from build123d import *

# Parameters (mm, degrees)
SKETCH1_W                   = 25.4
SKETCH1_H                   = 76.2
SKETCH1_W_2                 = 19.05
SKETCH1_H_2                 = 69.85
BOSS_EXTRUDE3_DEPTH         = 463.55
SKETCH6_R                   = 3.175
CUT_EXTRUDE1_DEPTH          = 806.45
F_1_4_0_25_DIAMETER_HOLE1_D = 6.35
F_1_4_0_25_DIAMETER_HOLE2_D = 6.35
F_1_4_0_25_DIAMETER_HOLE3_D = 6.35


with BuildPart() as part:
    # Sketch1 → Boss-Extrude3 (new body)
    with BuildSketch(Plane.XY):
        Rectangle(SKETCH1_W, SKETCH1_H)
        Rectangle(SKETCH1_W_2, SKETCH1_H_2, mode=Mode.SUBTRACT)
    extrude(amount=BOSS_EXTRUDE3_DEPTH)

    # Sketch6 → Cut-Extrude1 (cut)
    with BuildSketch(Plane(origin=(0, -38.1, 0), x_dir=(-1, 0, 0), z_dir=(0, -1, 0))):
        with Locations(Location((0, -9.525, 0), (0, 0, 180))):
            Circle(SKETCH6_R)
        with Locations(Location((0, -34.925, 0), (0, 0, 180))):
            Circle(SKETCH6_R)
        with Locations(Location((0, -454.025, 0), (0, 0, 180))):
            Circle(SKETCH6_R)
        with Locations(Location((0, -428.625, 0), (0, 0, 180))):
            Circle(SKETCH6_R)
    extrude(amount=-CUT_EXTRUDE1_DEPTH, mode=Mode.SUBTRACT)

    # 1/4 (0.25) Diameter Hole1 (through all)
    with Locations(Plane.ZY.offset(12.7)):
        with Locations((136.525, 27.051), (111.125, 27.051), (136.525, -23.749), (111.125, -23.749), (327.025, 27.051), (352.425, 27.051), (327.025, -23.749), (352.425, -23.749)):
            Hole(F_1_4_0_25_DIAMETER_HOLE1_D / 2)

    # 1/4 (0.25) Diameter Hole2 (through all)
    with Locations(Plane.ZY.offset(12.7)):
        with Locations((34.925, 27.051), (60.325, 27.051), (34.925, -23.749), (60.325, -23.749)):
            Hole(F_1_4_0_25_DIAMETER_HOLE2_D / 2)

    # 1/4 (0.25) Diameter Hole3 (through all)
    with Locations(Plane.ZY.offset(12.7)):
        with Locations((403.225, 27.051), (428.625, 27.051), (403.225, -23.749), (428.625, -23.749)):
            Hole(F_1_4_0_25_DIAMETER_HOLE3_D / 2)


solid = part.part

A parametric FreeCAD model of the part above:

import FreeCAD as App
import Part
import Sketcher
Q = App.Units.Quantity


def add_polygon(sketch, points):
    """Adds a closed chain of lines whose ends are joined by coincident constraints."""
    first, n = sketch.GeometryCount, len(points)
    for a, b in zip(points, points[1:] + points[:1]):
        sketch.addGeometry(Part.LineSegment(App.Vector(*a, 0), App.Vector(*b, 0)), False)
    for i in range(n):
        sketch.addConstraint(Sketcher.Constraint("Coincident", first + i, 2, first + (i + 1) % n, 1))

doc = App.newDocument("Part")
params = doc.addObject("Spreadsheet::Sheet", "Params")
for row, (alias, value) in enumerate([
    ("sketch1_width", "1 in"),
    ("sketch1_height", "3 in"),
    ("sketch1_width2", "0.75 in"),
    ("sketch1_height2", "2.75 in"),
    ("pad1_length", "18.25 in"),
    ("sketch2_diameter", "0.25 in"),
    ("pocket1_length", "31.75 in"),
    ("sketch3_diameter", "0.25 in"),
    ("hole_diameter", "0.25 in"),
    ("sketch4_diameter", "0.25 in"),
    ("hole2_diameter", "0.25 in"),
    ("sketch5_diameter", "0.25 in"),
    ("hole3_diameter", "0.25 in"),
], start=1):
    params.set(f"A{row}", alias)
    params.set(f"B{row}", "=" + value)
    params.setAlias(f"B{row}", alias)

body = doc.addObject("PartDesign::Body", "Body")

sketch1 = doc.addObject("Sketcher::SketchObject", "Sketch")
body.addObject(sketch1)
sketch1.AttachmentSupport = (doc.XY_Plane, [""])
sketch1.MapMode = "FlatFace"
add_polygon(sketch1, [(-12.7, 38.1), (-12.7, -38.1), (12.7, -38.1), (12.7, 38.1)])
add_polygon(sketch1, [(9.525, -34.925), (-9.525, -34.925), (-9.525, 34.925), (9.525, 34.925)])
sketch1.addConstraint([
    Sketcher.Constraint("Vertical", 0),
    Sketcher.Constraint("Horizontal", 1),
    Sketcher.Constraint("Vertical", 2),
    Sketcher.Constraint("Horizontal", 3),
    Sketcher.Constraint("Horizontal", 4),
    Sketcher.Constraint("Vertical", 5),
    Sketcher.Constraint("Horizontal", 6),
    Sketcher.Constraint("Vertical", 7),
    Sketcher.Constraint("Symmetric", 0, 2, 2, 2, -1, 1),
    Sketcher.Constraint("Symmetric", 4, 2, 6, 2, -1, 1),
    Sketcher.Constraint("DistanceX", 1, 1, 1, 2, Q("1 in")),
    Sketcher.Constraint("DistanceY", 0, 2, 0, 1, Q("3 in")),
    Sketcher.Constraint("DistanceX", 4, 2, 4, 1, Q("0.75 in")),
    Sketcher.Constraint("DistanceY", 5, 1, 5, 2, Q("2.75 in")),
])
sketch1.setExpression("Constraints[18]", "Params.sketch1_width")
sketch1.setExpression("Constraints[19]", "Params.sketch1_height")
sketch1.setExpression("Constraints[20]", "Params.sketch1_width2")
sketch1.setExpression("Constraints[21]", "Params.sketch1_height2")
pad1 = doc.addObject("PartDesign::Pad", "Pad")
body.addObject(pad1)
pad1.Profile = sketch1
pad1.setExpression("Length", "Params.pad1_length")

sketch2 = doc.addObject("Sketcher::SketchObject", "Sketch001")
body.addObject(sketch2)
sketch2.AttachmentSupport = (doc.XZ_Plane, [""])
sketch2.MapMode = "FlatFace"
sketch2.AttachmentOffset = App.Placement(App.Vector(0, 0, 1.5 * 25.4), App.Rotation())
sketch2.addGeometry([
    Part.Circle(App.Vector(0, 9.525, 0), App.Vector(0, 0, 1), 3.175),
    Part.Circle(App.Vector(0, 34.925, 0), App.Vector(0, 0, 1), 3.175),
    Part.Circle(App.Vector(0, 454.025, 0), App.Vector(0, 0, 1), 3.175),
    Part.Circle(App.Vector(0, 428.625, 0), App.Vector(0, 0, 1), 3.175),
], False)
sketch2.addConstraint([
    Sketcher.Constraint("Equal", 0, 1),
    Sketcher.Constraint("Equal", 1, 2),
    Sketcher.Constraint("Equal", 2, 3),
    Sketcher.Constraint("PointOnObject", 0, 3, -2),
    Sketcher.Constraint("PointOnObject", 1, 3, -2),
    Sketcher.Constraint("PointOnObject", 2, 3, -2),
    Sketcher.Constraint("PointOnObject", 3, 3, -2),
    Sketcher.Constraint("Diameter", 0, Q("0.25 in")),
    Sketcher.Constraint("DistanceY", 0, 3, 1, 3, Q("1 in")),
    Sketcher.Constraint("DistanceY", 3, 3, 2, 3, Q("1 in")),
    Sketcher.Constraint("DistanceY", 1, 3, 2, 3, Q("16.5 in")),
    Sketcher.Constraint("DistanceY", -1, 1, 0, 3, Q("0.375 in")),
])
sketch2.setExpression("Constraints[7]", "Params.sketch2_diameter")
pocket1 = doc.addObject("PartDesign::Pocket", "Pocket")
body.addObject(pocket1)
pocket1.Profile = sketch2
pocket1.setExpression("Length", "Params.pocket1_length")

sketch3 = doc.addObject("Sketcher::SketchObject", "Sketch002")
body.addObject(sketch3)
sketch3.AttachmentSupport = (doc.YZ_Plane, [""])
sketch3.MapMode = "FlatFace"
sketch3.AttachmentOffset = App.Placement(App.Vector(0, 0, -0.5 * 25.4), App.Rotation())
sketch3.addGeometry([
    Part.Circle(App.Vector(27.051, 136.525, 0), App.Vector(0, 0, 1), 3.175),
    Part.Circle(App.Vector(27.051, 111.125, 0), App.Vector(0, 0, 1), 3.175),
    Part.Circle(App.Vector(-23.749, 136.525, 0), App.Vector(0, 0, 1), 3.175),
    Part.Circle(App.Vector(-23.749, 111.125, 0), App.Vector(0, 0, 1), 3.175),
    Part.Circle(App.Vector(27.051, 327.025, 0), App.Vector(0, 0, 1), 3.175),
    Part.Circle(App.Vector(27.051, 352.425, 0), App.Vector(0, 0, 1), 3.175),
    Part.Circle(App.Vector(-23.749, 327.025, 0), App.Vector(0, 0, 1), 3.175),
    Part.Circle(App.Vector(-23.749, 352.425, 0), App.Vector(0, 0, 1), 3.175),
], False)
sketch3.addConstraint([
    Sketcher.Constraint("Equal", 0, 1),
    Sketcher.Constraint("Equal", 1, 2),
    Sketcher.Constraint("Equal", 2, 3),
    Sketcher.Constraint("Equal", 3, 4),
    Sketcher.Constraint("Equal", 4, 5),
    Sketcher.Constraint("Equal", 5, 6),
    Sketcher.Constraint("Equal", 6, 7),
    Sketcher.Constraint("Horizontal", 0, 3, 2, 3),
    Sketcher.Constraint("Horizontal", 1, 3, 3, 3),
    Sketcher.Constraint("Horizontal", 4, 3, 6, 3),
    Sketcher.Constraint("Horizontal", 5, 3, 7, 3),
    Sketcher.Constraint("Vertical", 0, 3, 1, 3),
    Sketcher.Constraint("Vertical", 2, 3, 3, 3),
    Sketcher.Constraint("Vertical", 1, 3, 4, 3),
    Sketcher.Constraint("Vertical", 4, 3, 5, 3),
    Sketcher.Constraint("Vertical", 3, 3, 6, 3),
    Sketcher.Constraint("Vertical", 6, 3, 7, 3),
    Sketcher.Constraint("Diameter", 0, Q("0.25 in")),
    Sketcher.Constraint("DistanceY", 1, 3, 0, 3, Q("1 in")),
    Sketcher.Constraint("DistanceX", 2, 3, 0, 3, Q("2 in")),
    Sketcher.Constraint("DistanceY", 4, 3, 5, 3, Q("1 in")),
    Sketcher.Constraint("DistanceY", 0, 3, 4, 3, Q("7.5 in")),
    Sketcher.Constraint("DistanceX", -1, 1, 0, 3, Q("1.065 in")),
    Sketcher.Constraint("DistanceY", -1, 1, 0, 3, Q("5.375 in")),
])
sketch3.setExpression("Constraints[17]", "Params.sketch3_diameter")
doc.recompute()
hole = doc.addObject("PartDesign::Hole", "Hole")
body.addObject(hole)
hole.Profile = sketch3
hole.ThreadType = "None"
hole.setExpression("Diameter", "Params.hole_diameter")
hole.DepthType = "ThroughAll"
hole.Reversed = True

sketch4 = doc.addObject("Sketcher::SketchObject", "Sketch003")
body.addObject(sketch4)
sketch4.AttachmentSupport = (doc.YZ_Plane, [""])
sketch4.MapMode = "FlatFace"
sketch4.AttachmentOffset = App.Placement(App.Vector(0, 0, -0.5 * 25.4), App.Rotation())
sketch4.addGeometry([
    Part.Circle(App.Vector(27.051, 34.925, 0), App.Vector(0, 0, 1), 3.175),
    Part.Circle(App.Vector(27.051, 60.325, 0), App.Vector(0, 0, 1), 3.175),
    Part.Circle(App.Vector(-23.749, 34.925, 0), App.Vector(0, 0, 1), 3.175),
    Part.Circle(App.Vector(-23.749, 60.325, 0), App.Vector(0, 0, 1), 3.175),
], False)
sketch4.addConstraint([
    Sketcher.Constraint("Equal", 0, 1),
    Sketcher.Constraint("Equal", 1, 2),
    Sketcher.Constraint("Equal", 2, 3),
    Sketcher.Constraint("Horizontal", 0, 3, 2, 3),
    Sketcher.Constraint("Horizontal", 1, 3, 3, 3),
    Sketcher.Constraint("Vertical", 0, 3, 1, 3),
    Sketcher.Constraint("Vertical", 2, 3, 3, 3),
    Sketcher.Constraint("Diameter", 0, Q("0.25 in")),
    Sketcher.Constraint("DistanceY", 0, 3, 1, 3, Q("1 in")),
    Sketcher.Constraint("DistanceX", 2, 3, 0, 3, Q("2 in")),
    Sketcher.Constraint("DistanceX", -1, 1, 0, 3, Q("1.065 in")),
    Sketcher.Constraint("DistanceY", -1, 1, 0, 3, Q("1.375 in")),
])
sketch4.setExpression("Constraints[7]", "Params.sketch4_diameter")
doc.recompute()
hole2 = doc.addObject("PartDesign::Hole", "Hole001")
body.addObject(hole2)
hole2.Profile = sketch4
hole2.ThreadType = "None"
hole2.setExpression("Diameter", "Params.hole2_diameter")
hole2.DepthType = "ThroughAll"
hole2.Reversed = True

sketch5 = doc.addObject("Sketcher::SketchObject", "Sketch004")
body.addObject(sketch5)
sketch5.AttachmentSupport = (doc.YZ_Plane, [""])
sketch5.MapMode = "FlatFace"
sketch5.AttachmentOffset = App.Placement(App.Vector(0, 0, -0.5 * 25.4), App.Rotation())
sketch5.addGeometry([
    Part.Circle(App.Vector(27.051, 403.225, 0), App.Vector(0, 0, 1), 3.175),
    Part.Circle(App.Vector(27.051, 428.625, 0), App.Vector(0, 0, 1), 3.175),
    Part.Circle(App.Vector(-23.749, 403.225, 0), App.Vector(0, 0, 1), 3.175),
    Part.Circle(App.Vector(-23.749, 428.625, 0), App.Vector(0, 0, 1), 3.175),
], False)
sketch5.addConstraint([
    Sketcher.Constraint("Equal", 0, 1),
    Sketcher.Constraint("Equal", 1, 2),
    Sketcher.Constraint("Equal", 2, 3),
    Sketcher.Constraint("Horizontal", 0, 3, 2, 3),
    Sketcher.Constraint("Horizontal", 1, 3, 3, 3),
    Sketcher.Constraint("Vertical", 0, 3, 1, 3),
    Sketcher.Constraint("Vertical", 2, 3, 3, 3),
    Sketcher.Constraint("Diameter", 0, Q("0.25 in")),
    Sketcher.Constraint("DistanceY", 0, 3, 1, 3, Q("1 in")),
    Sketcher.Constraint("DistanceX", 2, 3, 0, 3, Q("2 in")),
    Sketcher.Constraint("DistanceX", -1, 1, 0, 3, Q("1.065 in")),
    Sketcher.Constraint("DistanceY", -1, 1, 0, 3, Q("15.875 in")),
])
sketch5.setExpression("Constraints[7]", "Params.sketch5_diameter")
doc.recompute()
hole3 = doc.addObject("PartDesign::Hole", "Hole002")
body.addObject(hole3)
hole3.Profile = sketch5
hole3.ThreadType = "None"
hole3.setExpression("Diameter", "Params.hole3_diameter")
hole3.DepthType = "ThroughAll"
hole3.Reversed = True

doc.recompute()
